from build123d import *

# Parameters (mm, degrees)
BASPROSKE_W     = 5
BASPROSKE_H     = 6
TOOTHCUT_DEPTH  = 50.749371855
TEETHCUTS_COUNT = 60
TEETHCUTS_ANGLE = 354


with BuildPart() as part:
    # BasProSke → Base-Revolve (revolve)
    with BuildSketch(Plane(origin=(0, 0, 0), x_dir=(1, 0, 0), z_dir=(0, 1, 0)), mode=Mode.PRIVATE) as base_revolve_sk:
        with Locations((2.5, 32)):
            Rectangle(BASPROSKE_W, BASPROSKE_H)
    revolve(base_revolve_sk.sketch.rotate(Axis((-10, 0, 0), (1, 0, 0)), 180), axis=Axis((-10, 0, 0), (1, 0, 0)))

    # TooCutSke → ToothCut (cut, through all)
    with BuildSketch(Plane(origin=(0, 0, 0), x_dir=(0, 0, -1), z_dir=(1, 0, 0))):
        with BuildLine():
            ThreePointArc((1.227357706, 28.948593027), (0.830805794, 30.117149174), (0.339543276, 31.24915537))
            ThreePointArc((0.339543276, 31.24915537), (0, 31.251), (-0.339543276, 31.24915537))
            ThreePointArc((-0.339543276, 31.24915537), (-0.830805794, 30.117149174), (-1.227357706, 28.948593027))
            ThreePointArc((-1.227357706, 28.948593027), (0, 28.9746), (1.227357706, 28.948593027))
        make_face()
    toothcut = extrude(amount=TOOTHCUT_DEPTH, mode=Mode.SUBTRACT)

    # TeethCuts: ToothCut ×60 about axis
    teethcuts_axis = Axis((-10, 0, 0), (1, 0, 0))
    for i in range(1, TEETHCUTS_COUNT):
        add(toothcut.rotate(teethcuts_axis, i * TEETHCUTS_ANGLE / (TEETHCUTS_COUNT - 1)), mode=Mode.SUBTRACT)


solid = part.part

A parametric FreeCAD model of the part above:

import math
import FreeCAD as App
import Part
import Sketcher

doc = App.newDocument("Part")
body = doc.addObject("PartDesign::Body", "Body")

# Sketch on XZ plane
sketch1 = body.newObject("Sketcher::SketchObject", "Sketch")
sketch1.AttachmentSupport = (doc.getObject("XZ_Plane"), [""])
sketch1.MapMode = "FlatFace"
sketch1.addGeometry([
    Part.LineSegment(App.Vector(0, -35, 0), App.Vector(0, -29, 0)),
    Part.LineSegment(App.Vector(0, -29, 0), App.Vector(5, -29, 0)),
    Part.LineSegment(App.Vector(5, -29, 0), App.Vector(5, -35, 0)),
    Part.LineSegment(App.Vector(5, -35, 0), App.Vector(0, -35, 0)),
], False)
sketch1.addConstraint([
    Sketcher.Constraint("Coincident", 0, 2, 1, 1),
    Sketcher.Constraint("Coincident", 1, 2, 2, 1),
    Sketcher.Constraint("Coincident", 2, 2, 3, 1),
    Sketcher.Constraint("Coincident", 3, 2, 0, 1),
    Sketcher.Constraint("Vertical", 0),
    Sketcher.Constraint("Horizontal", 1),
    Sketcher.Constraint("Vertical", 2),
    Sketcher.Constraint("Horizontal", 3),
    Sketcher.Constraint("PointOnObject", 0, 2, -2),
    Sketcher.Constraint("DistanceX", 1, 1, 1, 2, 5.0),
    Sketcher.Constraint("DistanceY", 0, 1, 0, 2, 6.0),
    Sketcher.Constraint("DistanceY", 0, 2, -1, 1, 29.0),
])
revolution = body.newObject("PartDesign::Revolution", "Revolution")
revolution.Profile = sketch1
revolution.ReferenceAxis = (sketch1, ["H_Axis"])
revolution.Angle = 360

# Sketch on YZ plane
sketch2 = body.newObject("Sketcher::SketchObject", "Sketch001")
sketch2.AttachmentSupport = (doc.getObject("YZ_Plane"), [""])
sketch2.MapMode = "FlatFace"
sketch2.addGeometry([
    Part.ArcOfCircle(Part.Circle(App.Vector(24.7, 13.2, 0), App.Vector(0, 0, 1), 15), math.radians(-73.61), math.radians(-64.18)),
    Part.ArcOfCircle(Part.Circle(App.Vector(0, 0, 0), App.Vector(0, 0, 1), 31.3), math.radians(-0.62), math.radians(0.62)),
    Part.ArcOfCircle(Part.Circle(App.Vector(24.7, -13.2, 0), App.Vector(0, 0, 1), 15), math.radians(64.18), math.radians(73.61)),
    Part.ArcOfCircle(Part.Circle(App.Vector(0, 0, 0), App.Vector(0, 0, 1), 29), math.radians(-2.43), math.radians(2.43)),
], False)
sketch2.addConstraint([
    Sketcher.Constraint("Coincident", 0, 2, 1, 1),
    Sketcher.Constraint("Coincident", 1, 2, 2, 1),
    Sketcher.Constraint("Coincident", 2, 2, 3, 2),
    Sketcher.Constraint("Coincident", 3, 1, 0, 1),
    Sketcher.Constraint("Coincident", 1, 3, -1, 1),
    Sketcher.Constraint("Coincident", 3, 3, -1, 1),
    Sketcher.Constraint("Equal", 0, 2),
    Sketcher.Constraint("Symmetric", 0, 3, 2, 3, -1),
    Sketcher.Constraint("Radius", 0, 15.0),
    Sketcher.Constraint("Radius", 3, 28.9746),
    Sketcher.Constraint("Radius", 1, 31.250993),
    Sketcher.Constraint("DistanceY", 0, 2, 2, 2, 1.566901),
    Sketcher.Constraint("DistanceX", -1, 1, 0, 3, 24.716661),
])
pocket1 = body.newObject("PartDesign::Pocket", "Pocket")
pocket1.Profile = sketch2
pocket1.Type = "ThroughAll"
pocket1.Reversed = True
doc.recompute()

polarpattern = body.newObject("PartDesign::PolarPattern", "PolarPattern")
polarpattern.Originals = [pocket1]
polarpattern.Axis = (doc.getObject("X_Axis"), [""])
polarpattern.Angle = 360
polarpattern.Occurrences = 60
body.Tip = polarpattern

doc.recompute()
